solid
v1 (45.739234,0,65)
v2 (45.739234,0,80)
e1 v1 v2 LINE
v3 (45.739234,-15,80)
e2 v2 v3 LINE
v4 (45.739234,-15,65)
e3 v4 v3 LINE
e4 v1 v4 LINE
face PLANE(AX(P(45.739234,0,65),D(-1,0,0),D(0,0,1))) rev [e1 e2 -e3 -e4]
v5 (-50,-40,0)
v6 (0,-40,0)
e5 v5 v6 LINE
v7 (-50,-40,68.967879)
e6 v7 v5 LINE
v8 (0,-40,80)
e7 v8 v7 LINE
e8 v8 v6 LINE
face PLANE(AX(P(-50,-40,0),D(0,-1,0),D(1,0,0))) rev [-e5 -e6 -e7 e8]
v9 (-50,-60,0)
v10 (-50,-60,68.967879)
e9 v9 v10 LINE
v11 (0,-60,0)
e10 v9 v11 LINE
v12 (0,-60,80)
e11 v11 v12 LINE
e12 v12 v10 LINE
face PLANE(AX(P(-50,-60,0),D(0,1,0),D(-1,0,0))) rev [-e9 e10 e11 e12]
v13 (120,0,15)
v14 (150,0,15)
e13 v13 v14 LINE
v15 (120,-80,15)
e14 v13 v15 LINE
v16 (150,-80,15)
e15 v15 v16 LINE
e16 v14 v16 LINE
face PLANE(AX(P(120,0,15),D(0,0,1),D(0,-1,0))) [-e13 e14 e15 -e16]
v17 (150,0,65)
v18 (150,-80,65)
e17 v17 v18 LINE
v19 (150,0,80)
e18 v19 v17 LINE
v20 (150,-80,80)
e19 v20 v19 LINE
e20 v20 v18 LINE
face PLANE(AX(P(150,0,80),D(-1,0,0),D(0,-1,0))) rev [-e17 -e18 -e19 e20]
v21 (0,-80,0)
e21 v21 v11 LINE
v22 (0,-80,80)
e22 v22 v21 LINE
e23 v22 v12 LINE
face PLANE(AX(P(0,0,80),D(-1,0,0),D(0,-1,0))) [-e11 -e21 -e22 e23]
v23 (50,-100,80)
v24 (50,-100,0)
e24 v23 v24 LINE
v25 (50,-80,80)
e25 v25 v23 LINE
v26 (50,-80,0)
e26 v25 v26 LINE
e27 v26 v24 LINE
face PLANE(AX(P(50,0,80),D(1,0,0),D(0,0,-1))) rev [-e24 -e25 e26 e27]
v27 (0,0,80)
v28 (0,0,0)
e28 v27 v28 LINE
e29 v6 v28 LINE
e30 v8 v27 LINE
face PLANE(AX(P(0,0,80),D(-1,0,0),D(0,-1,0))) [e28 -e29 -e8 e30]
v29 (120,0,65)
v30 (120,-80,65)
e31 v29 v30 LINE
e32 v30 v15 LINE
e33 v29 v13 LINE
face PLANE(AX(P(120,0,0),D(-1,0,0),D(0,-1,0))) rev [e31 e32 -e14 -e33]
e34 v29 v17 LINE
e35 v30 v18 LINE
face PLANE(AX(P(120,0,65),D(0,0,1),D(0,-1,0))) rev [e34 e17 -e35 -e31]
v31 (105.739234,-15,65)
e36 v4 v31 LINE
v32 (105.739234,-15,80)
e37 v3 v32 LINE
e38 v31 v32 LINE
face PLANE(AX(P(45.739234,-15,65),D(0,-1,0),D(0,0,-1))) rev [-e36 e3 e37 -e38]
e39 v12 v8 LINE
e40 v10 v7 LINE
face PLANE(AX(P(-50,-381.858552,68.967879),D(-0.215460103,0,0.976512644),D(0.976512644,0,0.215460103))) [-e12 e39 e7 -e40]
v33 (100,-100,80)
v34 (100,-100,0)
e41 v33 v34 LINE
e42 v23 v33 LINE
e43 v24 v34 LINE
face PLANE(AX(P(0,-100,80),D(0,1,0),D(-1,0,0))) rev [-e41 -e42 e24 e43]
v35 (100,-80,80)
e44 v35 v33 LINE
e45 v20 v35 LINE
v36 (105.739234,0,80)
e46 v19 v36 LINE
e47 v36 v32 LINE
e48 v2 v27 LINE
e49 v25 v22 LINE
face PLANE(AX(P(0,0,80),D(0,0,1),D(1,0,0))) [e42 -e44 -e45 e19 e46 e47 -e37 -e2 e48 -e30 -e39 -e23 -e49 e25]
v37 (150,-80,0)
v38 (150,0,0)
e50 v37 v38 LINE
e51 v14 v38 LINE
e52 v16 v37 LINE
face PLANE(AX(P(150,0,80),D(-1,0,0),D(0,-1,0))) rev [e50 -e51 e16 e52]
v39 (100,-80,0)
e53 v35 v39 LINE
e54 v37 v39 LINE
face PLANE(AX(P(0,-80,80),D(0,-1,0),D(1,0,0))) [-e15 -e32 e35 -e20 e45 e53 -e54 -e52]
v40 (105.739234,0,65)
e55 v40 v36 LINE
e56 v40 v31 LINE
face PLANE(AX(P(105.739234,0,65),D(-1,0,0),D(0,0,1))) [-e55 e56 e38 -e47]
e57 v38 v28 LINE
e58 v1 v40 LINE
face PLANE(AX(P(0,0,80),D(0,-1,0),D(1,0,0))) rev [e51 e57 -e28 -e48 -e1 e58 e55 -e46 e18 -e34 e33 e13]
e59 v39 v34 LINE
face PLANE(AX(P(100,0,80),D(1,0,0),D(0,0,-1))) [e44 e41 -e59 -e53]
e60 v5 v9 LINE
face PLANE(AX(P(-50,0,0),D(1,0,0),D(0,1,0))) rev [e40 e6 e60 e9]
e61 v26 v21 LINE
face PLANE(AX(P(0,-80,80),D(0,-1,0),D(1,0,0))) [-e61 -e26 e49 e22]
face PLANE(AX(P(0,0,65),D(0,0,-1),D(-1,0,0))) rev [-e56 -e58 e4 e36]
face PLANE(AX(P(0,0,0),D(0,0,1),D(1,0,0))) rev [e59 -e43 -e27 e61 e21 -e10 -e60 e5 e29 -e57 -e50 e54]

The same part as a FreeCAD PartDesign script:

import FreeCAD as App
import Part
import Sketcher
from FreeCAD import Vector
Q = App.Units.Quantity

doc = App.newDocument("Part")
params = doc.addObject("Spreadsheet::Sheet", "Params")
for row, (alias, value) in enumerate([
    ("sketch1_width", "50 mm"),
    ("sketch1_height", "20 mm"),
    ("sketch1_height2", "80 mm"),
    ("pad1_length", "80 mm"),
    ("sketch2_width", "20 mm"),
    ("sketch2_height", "80 mm"),
    ("pad2_length", "50 mm"),
    ("sketch3_width", "50 mm"),
    ("sketch4_width", "80 mm"),
    ("sketch4_height", "50 mm"),
    ("pocket2_length", "30 mm"),
    ("sketch5_width", "60 mm"),
    ("sketch5_height", "15 mm"),
    ("pocket3_length", "15 mm"),
], start=1):
    params.set(f"A{row}", alias)
    params.set(f"B{row}", "=" + value)
    params.setAlias(f"B{row}", alias)

body = doc.addObject("PartDesign::Body", "Body")

# Sketch on XY plane
sketch1 = doc.addObject("Sketcher::SketchObject", "Sketch")
body.addObject(sketch1)
sketch1.AttachmentSupport = (doc.XY_Plane, [""])
sketch1.MapMode = "FlatFace"
sketch1.addGeometry(Part.LineSegment(Vector(50, -80, 0), Vector(50, -100, 0)), False)
sketch1.addGeometry(Part.LineSegment(Vector(50, -100, 0), Vector(100, -100, 0)), False)
sketch1.addGeometry(Part.LineSegment(Vector(100, -100, 0), Vector(100, -80, 0)), False)
sketch1.addGeometry(Part.LineSegment(Vector(100, -80, 0), Vector(150, -80, 0)), False)
sketch1.addGeometry(Part.LineSegment(Vector(150, -80, 0), Vector(150, 0, 0)), False)
sketch1.addGeometry(Part.LineSegment(Vector(150, 0, 0), Vector(0, 0, 0)), False)
sketch1.addGeometry(Part.LineSegment(Vector(0, 0, 0), Vector(0, -80, 0)), False)
sketch1.addGeometry(Part.LineSegment(Vector(0, -80, 0), Vector(50, -80, 0)), False)
sketch1.addConstraint(Sketcher.Constraint("Coincident", 0, 2, 1, 1))
sketch1.addConstraint(Sketcher.Constraint("Coincident", 1, 2, 2, 1))
sketch1.addConstraint(Sketcher.Constraint("Coincident", 2, 2, 3, 1))
sketch1.addConstraint(Sketcher.Constraint("Coincident", 3, 2, 4, 1))
sketch1.addConstraint(Sketcher.Constraint("Coincident", 4, 2, 5, 1))
sketch1.addConstraint(Sketcher.Constraint("Coincident", 5, 2, 6, 1))
sketch1.addConstraint(Sketcher.Constraint("Coincident", 6, 2, 7, 1))
sketch1.addConstraint(Sketcher.Constraint("Coincident", 7, 2, 0, 1))
sketch1.addConstraint(Sketcher.Constraint("Vertical", 0))
sketch1.addConstraint(Sketcher.Constraint("Horizontal", 1))
sketch1.addConstraint(Sketcher.Constraint("Vertical", 2))
sketch1.addConstraint(Sketcher.Constraint("Horizontal", 3))
sketch1.addConstraint(Sketcher.Constraint("Vertical", 4))
sketch1.addConstraint(Sketcher.Constraint("Horizontal", 5))
sketch1.addConstraint(Sketcher.Constraint("Vertical", 6))
sketch1.addConstraint(Sketcher.Constraint("Horizontal", 7))
sketch1.addConstraint(Sketcher.Constraint("Coincident", 5, 2, -1, 1))
sketch1.addConstraint(Sketcher.Constraint("Horizontal", 3, 2, 6, 2))
sketch1.addConstraint(Sketcher.Constraint("Equal", 1, 3))
sketch1.addConstraint(Sketcher.Constraint("Equal", 3, 7))
sketch1.addConstraint(Sketcher.Constraint("DistanceX", 1, 1, 1, 2, Q("50 mm")))
sketch1.addConstraint(Sketcher.Constraint("DistanceY", 0, 2, 0, 1, Q("20 mm")))
sketch1.addConstraint(Sketcher.Constraint("DistanceY", 4, 1, 4, 2, Q("80 mm")))
sketch1.setExpression("Constraints[20]", "Params.sketch1_width")
sketch1.setExpression("Constraints[21]", "Params.sketch1_height")
sketch1.setExpression("Constraints[22]", "Params.sketch1_height2")
pad1 = doc.addObject("PartDesign::Pad", "Pad")
body.addObject(pad1)
pad1.Profile = sketch1
pad1.setExpression("Length", "Params.pad1_length")

# Sketch on YZ plane
sketch2 = doc.addObject("Sketcher::SketchObject", "Sketch001")
body.addObject(sketch2)
sketch2.AttachmentSupport = (doc.YZ_Plane, [""])
sketch2.MapMode = "FlatFace"
sketch2.addGeometry(Part.LineSegment(Vector(-40, 0, 0), Vector(-60, 0, 0)), False)
sketch2.addGeometry(Part.LineSegment(Vector(-60, 0, 0), Vector(-60, 80, 0)), False)
sketch2.addGeometry(Part.LineSegment(Vector(-60, 80, 0), Vector(-40, 80, 0)), False)
sketch2.addGeometry(Part.LineSegment(Vector(-40, 80, 0), Vector(-40, 0, 0)), False)
sketch2.addConstraint(Sketcher.Constraint("Coincident", 0, 2, 1, 1))
sketch2.addConstraint(Sketcher.Constraint("Coincident", 1, 2, 2, 1))
sketch2.addConstraint(Sketcher.Constraint("Coincident", 2, 2, 3, 1))
sketch2.addConstraint(Sketcher.Constraint("Coincident", 3, 2, 0, 1))
sketch2.addConstraint(Sketcher.Constraint("Horizontal", 0))
sketch2.addConstraint(Sketcher.Constraint("Vertical", 1))
sketch2.addConstraint(Sketcher.Constraint("Horizontal", 2))
sketch2.addConstraint(Sketcher.Constraint("Vertical", 3))
sketch2.addConstraint(Sketcher.Constraint("PointOnObject", 0, 2, -1))
sketch2.addConstraint(Sketcher.Constraint("DistanceX", 0, 2, 0, 1, Q("20 mm")))
sketch2.addConstraint(Sketcher.Constraint("DistanceY", 1, 1, 1, 2, Q("80 mm")))
sketch2.addConstraint(Sketcher.Constraint("DistanceX", 0, 2, -1, 1, Q("60 mm")))
sketch2.setExpression("Constraints[9]", "Params.sketch2_width")
sketch2.setExpression("Constraints[10]", "Params.sketch2_height")
pad2 = doc.addObject("PartDesign::Pad", "Pad001")
body.addObject(pad2)
pad2.Profile = sketch2
pad2.setExpression("Length", "Params.pad2_length")
pad2.Reversed = True

# Sketch on XZ plane
sketch3 = doc.addObject("Sketcher::SketchObject", "Sketch002")
body.addObject(sketch3)
sketch3.AttachmentSupport = (doc.XZ_Plane, [""])
sketch3.MapMode = "FlatFace"
sketch3.AttachmentOffset = App.Placement(Vector(0, 0, 60), App.Rotation())
sketch3.addGeometry(Part.LineSegment(Vector(-50, 69, 0), Vector(0, 80, 0)), False)
sketch3.addGeometry(Part.LineSegment(Vector(0, 80, 0), Vector(-50, 80, 0)), False)
sketch3.addGeometry(Part.LineSegment(Vector(-50, 80, 0), Vector(-50, 69, 0)), False)
sketch3.addConstraint(Sketcher.Constraint("Coincident", 0, 2, 1, 1))
sketch3.addConstraint(Sketcher.Constraint("Coincident", 1, 2, 2, 1))
sketch3.addConstraint(Sketcher.Constraint("Coincident", 2, 2, 0, 1))
sketch3.addConstraint(Sketcher.Constraint("Horizontal", 1))
sketch3.addConstraint(Sketcher.Constraint("Vertical", 2))
sketch3.addConstraint(Sketcher.Constraint("PointOnObject", 0, 2, -2))
sketch3.addConstraint(Sketcher.Constraint("DistanceX", 1, 2, 1, 1, Q("50 mm")))
sketch3.addConstraint(Sketcher.Constraint("DistanceY", -1, 1, 0, 2, Q("80 mm")))
sketch3.addConstraint(Sketcher.Constraint("DistanceY", 2, 2, 2, 1, Q("11.032121 mm")))
sketch3.setExpression("Constraints[6]", "Params.sketch3_width")
pocket1 = doc.addObject("PartDesign::Pocket", "Pocket")
body.addObject(pocket1)
pocket1.Profile = sketch3
pocket1.Type = "ThroughAll"
pocket1.Midplane = True

# Sketch on YZ plane
sketch4 = doc.addObject("Sketcher::SketchObject", "Sketch003")
body.addObject(sketch4)
sketch4.AttachmentSupport = (doc.YZ_Plane, [""])
sketch4.MapMode = "FlatFace"
sketch4.AttachmentOffset = App.Placement(Vector(0, 0, 150), App.Rotation())
sketch4.addGeometry(Part.LineSegment(Vector(0, 65, 0), Vector(-80, 65, 0)), False)
sketch4.addGeometry(Part.LineSegment(Vector(-80, 65, 0), Vector(-80, 15, 0)), False)
sketch4.addGeometry(Part.LineSegment(Vector(-80, 15, 0), Vector(0, 15, 0)), False)
sketch4.addGeometry(Part.LineSegment(Vector(0, 15, 0), Vector(0, 65, 0)), False)
sketch4.addConstraint(Sketcher.Constraint("Coincident", 0, 2, 1, 1))
sketch4.addConstraint(Sketcher.Constraint("Coincident", 1, 2, 2, 1))
sketch4.addConstraint(Sketcher.Constraint("Coincident", 2, 2, 3, 1))
sketch4.addConstraint(Sketcher.Constraint("Coincident", 3, 2, 0, 1))
sketch4.addConstraint(Sketcher.Constraint("Horizontal", 0))
sketch4.addConstraint(Sketcher.Constraint("Vertical", 1))
sketch4.addConstraint(Sketcher.Constraint("Horizontal", 2))
sketch4.addConstraint(Sketcher.Constraint("Vertical", 3))
sketch4.addConstraint(Sketcher.Constraint("PointOnObject", 2, 2, -2))
sketch4.addConstraint(Sketcher.Constraint("DistanceX", 0, 2, 0, 1, Q("80 mm")))
sketch4.addConstraint(Sketcher.Constraint("DistanceY", 1, 2, 1, 1, Q("50 mm")))
sketch4.addConstraint(Sketcher.Constraint("DistanceY", -1, 1, 0, 2, Q("65 mm")))
sketch4.setExpression("Constraints[9]", "Params.sketch4_width")
sketch4.setExpression("Constraints[10]", "Params.sketch4_height")
pocket2 = doc.addObject("PartDesign::Pocket", "Pocket001")
body.addObject(pocket2)
pocket2.Profile = sketch4
pocket2.setExpression("Length", "Params.pocket2_length")

# Sketch on XY plane
sketch5 = doc.addObject("Sketcher::SketchObject", "Sketch004")
body.addObject(sketch5)
sketch5.AttachmentSupport = (doc.XY_Plane, [""])
sketch5.MapMode = "FlatFace"
sketch5.AttachmentOffset = App.Placement(Vector(0, 0, 80), App.Rotation())
sketch5.addGeometry(Part.LineSegment(Vector(46, 0, 0), Vector(46, -15, 0)), False)
sketch5.addGeometry(Part.LineSegment(Vector(46, -15, 0), Vector(106, -15, 0)), False)
sketch5.addGeometry(Part.LineSegment(Vector(106, -15, 0), Vector(106, 0, 0)), False)
sketch5.addGeometry(Part.LineSegment(Vector(106, 0, 0), Vector(46, 0, 0)), False)
sketch5.addConstraint(Sketcher.Constraint("Coincident", 0, 2, 1, 1))
sketch5.addConstraint(Sketcher.Constraint("Coincident", 1, 2, 2, 1))
sketch5.addConstraint(Sketcher.Constraint("Coincident", 2, 2, 3, 1))
sketch5.addConstraint(Sketcher.Constraint("Coincident", 3, 2, 0, 1))
sketch5.addConstraint(Sketcher.Constraint("Vertical", 0))
sketch5.addConstraint(Sketcher.Constraint("Horizontal", 1))
sketch5.addConstraint(Sketcher.Constraint("Vertical", 2))
sketch5.addConstraint(Sketcher.Constraint("Horizontal", 3))
sketch5.addConstraint(Sketcher.Constraint("PointOnObject", 2, 2, -1))
sketch5.addConstraint(Sketcher.Constraint("DistanceX", 1, 1, 1, 2, Q("60 mm")))
sketch5.addConstraint(Sketcher.Constraint("DistanceY", 0, 2, 0, 1, Q("15 mm")))
sketch5.addConstraint(Sketcher.Constraint("DistanceX", -1, 1, 0, 2, Q("45.739234 mm")))
sketch5.setExpression("Constraints[9]", "Params.sketch5_width")
sketch5.setExpression("Constraints[10]", "Params.sketch5_height")
pocket3 = doc.addObject("PartDesign::Pocket", "Pocket002")
body.addObject(pocket3)
pocket3.Profile = sketch5
pocket3.setExpression("Length", "Params.pocket3_length")

doc.recompute()
